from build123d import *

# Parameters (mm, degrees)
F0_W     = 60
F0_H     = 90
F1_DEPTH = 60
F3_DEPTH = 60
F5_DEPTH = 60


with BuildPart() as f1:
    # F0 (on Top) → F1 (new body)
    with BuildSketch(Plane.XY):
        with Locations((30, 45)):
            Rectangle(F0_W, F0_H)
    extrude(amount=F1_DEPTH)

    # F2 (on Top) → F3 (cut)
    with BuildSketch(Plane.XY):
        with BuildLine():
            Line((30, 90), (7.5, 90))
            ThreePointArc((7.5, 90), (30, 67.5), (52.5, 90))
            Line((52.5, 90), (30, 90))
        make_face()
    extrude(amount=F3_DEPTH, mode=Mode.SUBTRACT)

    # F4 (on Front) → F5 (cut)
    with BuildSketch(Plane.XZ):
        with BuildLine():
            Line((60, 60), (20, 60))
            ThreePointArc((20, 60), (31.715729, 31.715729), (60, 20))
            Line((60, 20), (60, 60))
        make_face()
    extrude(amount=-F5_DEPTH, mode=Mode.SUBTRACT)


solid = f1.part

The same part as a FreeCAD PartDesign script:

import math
import FreeCAD as App
import Part
import Sketcher

V = App.Vector
Q = App.Units.Quantity

doc = App.newDocument("Part")
body = doc.addObject("PartDesign::Body", "Body")

# Sketch on XY plane
sketch1 = doc.addObject("Sketcher::SketchObject", "Sketch")
body.addObject(sketch1)
sketch1.AttachmentSupport = (doc.XY_Plane, [""])
sketch1.MapMode = "FlatFace"
sketch1.addGeometry([
    Part.LineSegment(V(0, 90, 0), V(0, 0, 0)),
    Part.LineSegment(V(0, 0, 0), V(60, 0, 0)),
    Part.LineSegment(V(60, 0, 0), V(60, 90, 0)),
    Part.LineSegment(V(60, 90, 0), V(0, 90, 0)),
], False)
sketch1.addConstraint([
    Sketcher.Constraint("Coincident", 0, 2, 1, 1),
    Sketcher.Constraint("Coincident", 1, 2, 2, 1),
    Sketcher.Constraint("Coincident", 2, 2, 3, 1),
    Sketcher.Constraint("Coincident", 3, 2, 0, 1),
    Sketcher.Constraint("Vertical", 0),
    Sketcher.Constraint("Horizontal", 1),
    Sketcher.Constraint("Vertical", 2),
    Sketcher.Constraint("Horizontal", 3),
    Sketcher.Constraint("Coincident", 0, 2, -1, 1),
    Sketcher.Constraint("DistanceX", 1, 1, 1, 2, Q("60 mm")),
    Sketcher.Constraint("DistanceY", 0, 2, 0, 1, Q("90 mm")),
])
pad1 = doc.addObject("PartDesign::Pad", "Pad")
body.addObject(pad1)
pad1.Profile = sketch1
pad1.Length = 60

# Sketch on XY plane
sketch2 = doc.addObject("Sketcher::SketchObject", "Sketch001")
body.addObject(sketch2)
sketch2.AttachmentSupport = (doc.XY_Plane, [""])
sketch2.MapMode = "FlatFace"
sketch2.addGeometry([
    Part.ArcOfCircle(Part.Circle(V(30, 90, 0), V(0, 0, 1), 22), math.radians(180), math.radians(360)),
    Part.LineSegment(V(52, 90, 0), V(8, 90, 0)),
], False)
sketch2.addConstraint([
    Sketcher.Constraint("Coincident", 0, 1, 1, 2),
    Sketcher.Constraint("Coincident", 1, 1, 0, 2),
    Sketcher.Constraint("Horizontal", 1),
    Sketcher.Constraint("Radius", 0, Q("22.5 mm")),
    Sketcher.Constraint("DistanceX", -1, 1, 0, 3, Q("30 mm")),
    Sketcher.Constraint("DistanceY", -1, 1, 0, 3, Q("90 mm")),
    Sketcher.Constraint("DistanceY", -1, 1, 0, 1, Q("90 mm")),
])
pocket1 = doc.addObject("PartDesign::Pocket", "Pocket")
body.addObject(pocket1)
pocket1.Profile = sketch2
pocket1.Length = 60
pocket1.Reversed = True

# Sketch on XZ plane
sketch3 = doc.addObject("Sketcher::SketchObject", "Sketch002")
body.addObject(sketch3)
sketch3.AttachmentSupport = (doc.XZ_Plane, [""])
sketch3.MapMode = "FlatFace"
sketch3.addGeometry([
    Part.LineSegment(V(60, 60, 0), V(20, 60, 0)),
    Part.ArcOfCircle(Part.Circle(V(60, 60, 0), V(0, 0, 1), 40), math.radians(-180), math.radians(-90)),
    Part.LineSegment(V(60, 20, 0), V(60, 60, 0)),
], False)
sketch3.addConstraint([
    Sketcher.Constraint("Coincident", 0, 2, 1, 1),
    Sketcher.Constraint("Coincident", 1, 2, 2, 1),
    Sketcher.Constraint("Coincident", 2, 2, 0, 1),
    Sketcher.Constraint("Horizontal", 0),
    Sketcher.Constraint("Vertical", 2),
    Sketcher.Constraint("Coincident", 2, 2, 1, 3),
    Sketcher.Constraint("Radius", 1, Q("40.000001 mm")),
    Sketcher.Constraint("DistanceX", -1, 1, 1, 3, Q("60.000001 mm")),
    Sketcher.Constraint("DistanceY", -1, 1, 1, 3, Q("60.000001 mm")),
])
pocket2 = doc.addObject("PartDesign::Pocket", "Pocket001")
body.addObject(pocket2)
pocket2.Profile = sketch3
pocket2.Length = 60

doc.recompute()
